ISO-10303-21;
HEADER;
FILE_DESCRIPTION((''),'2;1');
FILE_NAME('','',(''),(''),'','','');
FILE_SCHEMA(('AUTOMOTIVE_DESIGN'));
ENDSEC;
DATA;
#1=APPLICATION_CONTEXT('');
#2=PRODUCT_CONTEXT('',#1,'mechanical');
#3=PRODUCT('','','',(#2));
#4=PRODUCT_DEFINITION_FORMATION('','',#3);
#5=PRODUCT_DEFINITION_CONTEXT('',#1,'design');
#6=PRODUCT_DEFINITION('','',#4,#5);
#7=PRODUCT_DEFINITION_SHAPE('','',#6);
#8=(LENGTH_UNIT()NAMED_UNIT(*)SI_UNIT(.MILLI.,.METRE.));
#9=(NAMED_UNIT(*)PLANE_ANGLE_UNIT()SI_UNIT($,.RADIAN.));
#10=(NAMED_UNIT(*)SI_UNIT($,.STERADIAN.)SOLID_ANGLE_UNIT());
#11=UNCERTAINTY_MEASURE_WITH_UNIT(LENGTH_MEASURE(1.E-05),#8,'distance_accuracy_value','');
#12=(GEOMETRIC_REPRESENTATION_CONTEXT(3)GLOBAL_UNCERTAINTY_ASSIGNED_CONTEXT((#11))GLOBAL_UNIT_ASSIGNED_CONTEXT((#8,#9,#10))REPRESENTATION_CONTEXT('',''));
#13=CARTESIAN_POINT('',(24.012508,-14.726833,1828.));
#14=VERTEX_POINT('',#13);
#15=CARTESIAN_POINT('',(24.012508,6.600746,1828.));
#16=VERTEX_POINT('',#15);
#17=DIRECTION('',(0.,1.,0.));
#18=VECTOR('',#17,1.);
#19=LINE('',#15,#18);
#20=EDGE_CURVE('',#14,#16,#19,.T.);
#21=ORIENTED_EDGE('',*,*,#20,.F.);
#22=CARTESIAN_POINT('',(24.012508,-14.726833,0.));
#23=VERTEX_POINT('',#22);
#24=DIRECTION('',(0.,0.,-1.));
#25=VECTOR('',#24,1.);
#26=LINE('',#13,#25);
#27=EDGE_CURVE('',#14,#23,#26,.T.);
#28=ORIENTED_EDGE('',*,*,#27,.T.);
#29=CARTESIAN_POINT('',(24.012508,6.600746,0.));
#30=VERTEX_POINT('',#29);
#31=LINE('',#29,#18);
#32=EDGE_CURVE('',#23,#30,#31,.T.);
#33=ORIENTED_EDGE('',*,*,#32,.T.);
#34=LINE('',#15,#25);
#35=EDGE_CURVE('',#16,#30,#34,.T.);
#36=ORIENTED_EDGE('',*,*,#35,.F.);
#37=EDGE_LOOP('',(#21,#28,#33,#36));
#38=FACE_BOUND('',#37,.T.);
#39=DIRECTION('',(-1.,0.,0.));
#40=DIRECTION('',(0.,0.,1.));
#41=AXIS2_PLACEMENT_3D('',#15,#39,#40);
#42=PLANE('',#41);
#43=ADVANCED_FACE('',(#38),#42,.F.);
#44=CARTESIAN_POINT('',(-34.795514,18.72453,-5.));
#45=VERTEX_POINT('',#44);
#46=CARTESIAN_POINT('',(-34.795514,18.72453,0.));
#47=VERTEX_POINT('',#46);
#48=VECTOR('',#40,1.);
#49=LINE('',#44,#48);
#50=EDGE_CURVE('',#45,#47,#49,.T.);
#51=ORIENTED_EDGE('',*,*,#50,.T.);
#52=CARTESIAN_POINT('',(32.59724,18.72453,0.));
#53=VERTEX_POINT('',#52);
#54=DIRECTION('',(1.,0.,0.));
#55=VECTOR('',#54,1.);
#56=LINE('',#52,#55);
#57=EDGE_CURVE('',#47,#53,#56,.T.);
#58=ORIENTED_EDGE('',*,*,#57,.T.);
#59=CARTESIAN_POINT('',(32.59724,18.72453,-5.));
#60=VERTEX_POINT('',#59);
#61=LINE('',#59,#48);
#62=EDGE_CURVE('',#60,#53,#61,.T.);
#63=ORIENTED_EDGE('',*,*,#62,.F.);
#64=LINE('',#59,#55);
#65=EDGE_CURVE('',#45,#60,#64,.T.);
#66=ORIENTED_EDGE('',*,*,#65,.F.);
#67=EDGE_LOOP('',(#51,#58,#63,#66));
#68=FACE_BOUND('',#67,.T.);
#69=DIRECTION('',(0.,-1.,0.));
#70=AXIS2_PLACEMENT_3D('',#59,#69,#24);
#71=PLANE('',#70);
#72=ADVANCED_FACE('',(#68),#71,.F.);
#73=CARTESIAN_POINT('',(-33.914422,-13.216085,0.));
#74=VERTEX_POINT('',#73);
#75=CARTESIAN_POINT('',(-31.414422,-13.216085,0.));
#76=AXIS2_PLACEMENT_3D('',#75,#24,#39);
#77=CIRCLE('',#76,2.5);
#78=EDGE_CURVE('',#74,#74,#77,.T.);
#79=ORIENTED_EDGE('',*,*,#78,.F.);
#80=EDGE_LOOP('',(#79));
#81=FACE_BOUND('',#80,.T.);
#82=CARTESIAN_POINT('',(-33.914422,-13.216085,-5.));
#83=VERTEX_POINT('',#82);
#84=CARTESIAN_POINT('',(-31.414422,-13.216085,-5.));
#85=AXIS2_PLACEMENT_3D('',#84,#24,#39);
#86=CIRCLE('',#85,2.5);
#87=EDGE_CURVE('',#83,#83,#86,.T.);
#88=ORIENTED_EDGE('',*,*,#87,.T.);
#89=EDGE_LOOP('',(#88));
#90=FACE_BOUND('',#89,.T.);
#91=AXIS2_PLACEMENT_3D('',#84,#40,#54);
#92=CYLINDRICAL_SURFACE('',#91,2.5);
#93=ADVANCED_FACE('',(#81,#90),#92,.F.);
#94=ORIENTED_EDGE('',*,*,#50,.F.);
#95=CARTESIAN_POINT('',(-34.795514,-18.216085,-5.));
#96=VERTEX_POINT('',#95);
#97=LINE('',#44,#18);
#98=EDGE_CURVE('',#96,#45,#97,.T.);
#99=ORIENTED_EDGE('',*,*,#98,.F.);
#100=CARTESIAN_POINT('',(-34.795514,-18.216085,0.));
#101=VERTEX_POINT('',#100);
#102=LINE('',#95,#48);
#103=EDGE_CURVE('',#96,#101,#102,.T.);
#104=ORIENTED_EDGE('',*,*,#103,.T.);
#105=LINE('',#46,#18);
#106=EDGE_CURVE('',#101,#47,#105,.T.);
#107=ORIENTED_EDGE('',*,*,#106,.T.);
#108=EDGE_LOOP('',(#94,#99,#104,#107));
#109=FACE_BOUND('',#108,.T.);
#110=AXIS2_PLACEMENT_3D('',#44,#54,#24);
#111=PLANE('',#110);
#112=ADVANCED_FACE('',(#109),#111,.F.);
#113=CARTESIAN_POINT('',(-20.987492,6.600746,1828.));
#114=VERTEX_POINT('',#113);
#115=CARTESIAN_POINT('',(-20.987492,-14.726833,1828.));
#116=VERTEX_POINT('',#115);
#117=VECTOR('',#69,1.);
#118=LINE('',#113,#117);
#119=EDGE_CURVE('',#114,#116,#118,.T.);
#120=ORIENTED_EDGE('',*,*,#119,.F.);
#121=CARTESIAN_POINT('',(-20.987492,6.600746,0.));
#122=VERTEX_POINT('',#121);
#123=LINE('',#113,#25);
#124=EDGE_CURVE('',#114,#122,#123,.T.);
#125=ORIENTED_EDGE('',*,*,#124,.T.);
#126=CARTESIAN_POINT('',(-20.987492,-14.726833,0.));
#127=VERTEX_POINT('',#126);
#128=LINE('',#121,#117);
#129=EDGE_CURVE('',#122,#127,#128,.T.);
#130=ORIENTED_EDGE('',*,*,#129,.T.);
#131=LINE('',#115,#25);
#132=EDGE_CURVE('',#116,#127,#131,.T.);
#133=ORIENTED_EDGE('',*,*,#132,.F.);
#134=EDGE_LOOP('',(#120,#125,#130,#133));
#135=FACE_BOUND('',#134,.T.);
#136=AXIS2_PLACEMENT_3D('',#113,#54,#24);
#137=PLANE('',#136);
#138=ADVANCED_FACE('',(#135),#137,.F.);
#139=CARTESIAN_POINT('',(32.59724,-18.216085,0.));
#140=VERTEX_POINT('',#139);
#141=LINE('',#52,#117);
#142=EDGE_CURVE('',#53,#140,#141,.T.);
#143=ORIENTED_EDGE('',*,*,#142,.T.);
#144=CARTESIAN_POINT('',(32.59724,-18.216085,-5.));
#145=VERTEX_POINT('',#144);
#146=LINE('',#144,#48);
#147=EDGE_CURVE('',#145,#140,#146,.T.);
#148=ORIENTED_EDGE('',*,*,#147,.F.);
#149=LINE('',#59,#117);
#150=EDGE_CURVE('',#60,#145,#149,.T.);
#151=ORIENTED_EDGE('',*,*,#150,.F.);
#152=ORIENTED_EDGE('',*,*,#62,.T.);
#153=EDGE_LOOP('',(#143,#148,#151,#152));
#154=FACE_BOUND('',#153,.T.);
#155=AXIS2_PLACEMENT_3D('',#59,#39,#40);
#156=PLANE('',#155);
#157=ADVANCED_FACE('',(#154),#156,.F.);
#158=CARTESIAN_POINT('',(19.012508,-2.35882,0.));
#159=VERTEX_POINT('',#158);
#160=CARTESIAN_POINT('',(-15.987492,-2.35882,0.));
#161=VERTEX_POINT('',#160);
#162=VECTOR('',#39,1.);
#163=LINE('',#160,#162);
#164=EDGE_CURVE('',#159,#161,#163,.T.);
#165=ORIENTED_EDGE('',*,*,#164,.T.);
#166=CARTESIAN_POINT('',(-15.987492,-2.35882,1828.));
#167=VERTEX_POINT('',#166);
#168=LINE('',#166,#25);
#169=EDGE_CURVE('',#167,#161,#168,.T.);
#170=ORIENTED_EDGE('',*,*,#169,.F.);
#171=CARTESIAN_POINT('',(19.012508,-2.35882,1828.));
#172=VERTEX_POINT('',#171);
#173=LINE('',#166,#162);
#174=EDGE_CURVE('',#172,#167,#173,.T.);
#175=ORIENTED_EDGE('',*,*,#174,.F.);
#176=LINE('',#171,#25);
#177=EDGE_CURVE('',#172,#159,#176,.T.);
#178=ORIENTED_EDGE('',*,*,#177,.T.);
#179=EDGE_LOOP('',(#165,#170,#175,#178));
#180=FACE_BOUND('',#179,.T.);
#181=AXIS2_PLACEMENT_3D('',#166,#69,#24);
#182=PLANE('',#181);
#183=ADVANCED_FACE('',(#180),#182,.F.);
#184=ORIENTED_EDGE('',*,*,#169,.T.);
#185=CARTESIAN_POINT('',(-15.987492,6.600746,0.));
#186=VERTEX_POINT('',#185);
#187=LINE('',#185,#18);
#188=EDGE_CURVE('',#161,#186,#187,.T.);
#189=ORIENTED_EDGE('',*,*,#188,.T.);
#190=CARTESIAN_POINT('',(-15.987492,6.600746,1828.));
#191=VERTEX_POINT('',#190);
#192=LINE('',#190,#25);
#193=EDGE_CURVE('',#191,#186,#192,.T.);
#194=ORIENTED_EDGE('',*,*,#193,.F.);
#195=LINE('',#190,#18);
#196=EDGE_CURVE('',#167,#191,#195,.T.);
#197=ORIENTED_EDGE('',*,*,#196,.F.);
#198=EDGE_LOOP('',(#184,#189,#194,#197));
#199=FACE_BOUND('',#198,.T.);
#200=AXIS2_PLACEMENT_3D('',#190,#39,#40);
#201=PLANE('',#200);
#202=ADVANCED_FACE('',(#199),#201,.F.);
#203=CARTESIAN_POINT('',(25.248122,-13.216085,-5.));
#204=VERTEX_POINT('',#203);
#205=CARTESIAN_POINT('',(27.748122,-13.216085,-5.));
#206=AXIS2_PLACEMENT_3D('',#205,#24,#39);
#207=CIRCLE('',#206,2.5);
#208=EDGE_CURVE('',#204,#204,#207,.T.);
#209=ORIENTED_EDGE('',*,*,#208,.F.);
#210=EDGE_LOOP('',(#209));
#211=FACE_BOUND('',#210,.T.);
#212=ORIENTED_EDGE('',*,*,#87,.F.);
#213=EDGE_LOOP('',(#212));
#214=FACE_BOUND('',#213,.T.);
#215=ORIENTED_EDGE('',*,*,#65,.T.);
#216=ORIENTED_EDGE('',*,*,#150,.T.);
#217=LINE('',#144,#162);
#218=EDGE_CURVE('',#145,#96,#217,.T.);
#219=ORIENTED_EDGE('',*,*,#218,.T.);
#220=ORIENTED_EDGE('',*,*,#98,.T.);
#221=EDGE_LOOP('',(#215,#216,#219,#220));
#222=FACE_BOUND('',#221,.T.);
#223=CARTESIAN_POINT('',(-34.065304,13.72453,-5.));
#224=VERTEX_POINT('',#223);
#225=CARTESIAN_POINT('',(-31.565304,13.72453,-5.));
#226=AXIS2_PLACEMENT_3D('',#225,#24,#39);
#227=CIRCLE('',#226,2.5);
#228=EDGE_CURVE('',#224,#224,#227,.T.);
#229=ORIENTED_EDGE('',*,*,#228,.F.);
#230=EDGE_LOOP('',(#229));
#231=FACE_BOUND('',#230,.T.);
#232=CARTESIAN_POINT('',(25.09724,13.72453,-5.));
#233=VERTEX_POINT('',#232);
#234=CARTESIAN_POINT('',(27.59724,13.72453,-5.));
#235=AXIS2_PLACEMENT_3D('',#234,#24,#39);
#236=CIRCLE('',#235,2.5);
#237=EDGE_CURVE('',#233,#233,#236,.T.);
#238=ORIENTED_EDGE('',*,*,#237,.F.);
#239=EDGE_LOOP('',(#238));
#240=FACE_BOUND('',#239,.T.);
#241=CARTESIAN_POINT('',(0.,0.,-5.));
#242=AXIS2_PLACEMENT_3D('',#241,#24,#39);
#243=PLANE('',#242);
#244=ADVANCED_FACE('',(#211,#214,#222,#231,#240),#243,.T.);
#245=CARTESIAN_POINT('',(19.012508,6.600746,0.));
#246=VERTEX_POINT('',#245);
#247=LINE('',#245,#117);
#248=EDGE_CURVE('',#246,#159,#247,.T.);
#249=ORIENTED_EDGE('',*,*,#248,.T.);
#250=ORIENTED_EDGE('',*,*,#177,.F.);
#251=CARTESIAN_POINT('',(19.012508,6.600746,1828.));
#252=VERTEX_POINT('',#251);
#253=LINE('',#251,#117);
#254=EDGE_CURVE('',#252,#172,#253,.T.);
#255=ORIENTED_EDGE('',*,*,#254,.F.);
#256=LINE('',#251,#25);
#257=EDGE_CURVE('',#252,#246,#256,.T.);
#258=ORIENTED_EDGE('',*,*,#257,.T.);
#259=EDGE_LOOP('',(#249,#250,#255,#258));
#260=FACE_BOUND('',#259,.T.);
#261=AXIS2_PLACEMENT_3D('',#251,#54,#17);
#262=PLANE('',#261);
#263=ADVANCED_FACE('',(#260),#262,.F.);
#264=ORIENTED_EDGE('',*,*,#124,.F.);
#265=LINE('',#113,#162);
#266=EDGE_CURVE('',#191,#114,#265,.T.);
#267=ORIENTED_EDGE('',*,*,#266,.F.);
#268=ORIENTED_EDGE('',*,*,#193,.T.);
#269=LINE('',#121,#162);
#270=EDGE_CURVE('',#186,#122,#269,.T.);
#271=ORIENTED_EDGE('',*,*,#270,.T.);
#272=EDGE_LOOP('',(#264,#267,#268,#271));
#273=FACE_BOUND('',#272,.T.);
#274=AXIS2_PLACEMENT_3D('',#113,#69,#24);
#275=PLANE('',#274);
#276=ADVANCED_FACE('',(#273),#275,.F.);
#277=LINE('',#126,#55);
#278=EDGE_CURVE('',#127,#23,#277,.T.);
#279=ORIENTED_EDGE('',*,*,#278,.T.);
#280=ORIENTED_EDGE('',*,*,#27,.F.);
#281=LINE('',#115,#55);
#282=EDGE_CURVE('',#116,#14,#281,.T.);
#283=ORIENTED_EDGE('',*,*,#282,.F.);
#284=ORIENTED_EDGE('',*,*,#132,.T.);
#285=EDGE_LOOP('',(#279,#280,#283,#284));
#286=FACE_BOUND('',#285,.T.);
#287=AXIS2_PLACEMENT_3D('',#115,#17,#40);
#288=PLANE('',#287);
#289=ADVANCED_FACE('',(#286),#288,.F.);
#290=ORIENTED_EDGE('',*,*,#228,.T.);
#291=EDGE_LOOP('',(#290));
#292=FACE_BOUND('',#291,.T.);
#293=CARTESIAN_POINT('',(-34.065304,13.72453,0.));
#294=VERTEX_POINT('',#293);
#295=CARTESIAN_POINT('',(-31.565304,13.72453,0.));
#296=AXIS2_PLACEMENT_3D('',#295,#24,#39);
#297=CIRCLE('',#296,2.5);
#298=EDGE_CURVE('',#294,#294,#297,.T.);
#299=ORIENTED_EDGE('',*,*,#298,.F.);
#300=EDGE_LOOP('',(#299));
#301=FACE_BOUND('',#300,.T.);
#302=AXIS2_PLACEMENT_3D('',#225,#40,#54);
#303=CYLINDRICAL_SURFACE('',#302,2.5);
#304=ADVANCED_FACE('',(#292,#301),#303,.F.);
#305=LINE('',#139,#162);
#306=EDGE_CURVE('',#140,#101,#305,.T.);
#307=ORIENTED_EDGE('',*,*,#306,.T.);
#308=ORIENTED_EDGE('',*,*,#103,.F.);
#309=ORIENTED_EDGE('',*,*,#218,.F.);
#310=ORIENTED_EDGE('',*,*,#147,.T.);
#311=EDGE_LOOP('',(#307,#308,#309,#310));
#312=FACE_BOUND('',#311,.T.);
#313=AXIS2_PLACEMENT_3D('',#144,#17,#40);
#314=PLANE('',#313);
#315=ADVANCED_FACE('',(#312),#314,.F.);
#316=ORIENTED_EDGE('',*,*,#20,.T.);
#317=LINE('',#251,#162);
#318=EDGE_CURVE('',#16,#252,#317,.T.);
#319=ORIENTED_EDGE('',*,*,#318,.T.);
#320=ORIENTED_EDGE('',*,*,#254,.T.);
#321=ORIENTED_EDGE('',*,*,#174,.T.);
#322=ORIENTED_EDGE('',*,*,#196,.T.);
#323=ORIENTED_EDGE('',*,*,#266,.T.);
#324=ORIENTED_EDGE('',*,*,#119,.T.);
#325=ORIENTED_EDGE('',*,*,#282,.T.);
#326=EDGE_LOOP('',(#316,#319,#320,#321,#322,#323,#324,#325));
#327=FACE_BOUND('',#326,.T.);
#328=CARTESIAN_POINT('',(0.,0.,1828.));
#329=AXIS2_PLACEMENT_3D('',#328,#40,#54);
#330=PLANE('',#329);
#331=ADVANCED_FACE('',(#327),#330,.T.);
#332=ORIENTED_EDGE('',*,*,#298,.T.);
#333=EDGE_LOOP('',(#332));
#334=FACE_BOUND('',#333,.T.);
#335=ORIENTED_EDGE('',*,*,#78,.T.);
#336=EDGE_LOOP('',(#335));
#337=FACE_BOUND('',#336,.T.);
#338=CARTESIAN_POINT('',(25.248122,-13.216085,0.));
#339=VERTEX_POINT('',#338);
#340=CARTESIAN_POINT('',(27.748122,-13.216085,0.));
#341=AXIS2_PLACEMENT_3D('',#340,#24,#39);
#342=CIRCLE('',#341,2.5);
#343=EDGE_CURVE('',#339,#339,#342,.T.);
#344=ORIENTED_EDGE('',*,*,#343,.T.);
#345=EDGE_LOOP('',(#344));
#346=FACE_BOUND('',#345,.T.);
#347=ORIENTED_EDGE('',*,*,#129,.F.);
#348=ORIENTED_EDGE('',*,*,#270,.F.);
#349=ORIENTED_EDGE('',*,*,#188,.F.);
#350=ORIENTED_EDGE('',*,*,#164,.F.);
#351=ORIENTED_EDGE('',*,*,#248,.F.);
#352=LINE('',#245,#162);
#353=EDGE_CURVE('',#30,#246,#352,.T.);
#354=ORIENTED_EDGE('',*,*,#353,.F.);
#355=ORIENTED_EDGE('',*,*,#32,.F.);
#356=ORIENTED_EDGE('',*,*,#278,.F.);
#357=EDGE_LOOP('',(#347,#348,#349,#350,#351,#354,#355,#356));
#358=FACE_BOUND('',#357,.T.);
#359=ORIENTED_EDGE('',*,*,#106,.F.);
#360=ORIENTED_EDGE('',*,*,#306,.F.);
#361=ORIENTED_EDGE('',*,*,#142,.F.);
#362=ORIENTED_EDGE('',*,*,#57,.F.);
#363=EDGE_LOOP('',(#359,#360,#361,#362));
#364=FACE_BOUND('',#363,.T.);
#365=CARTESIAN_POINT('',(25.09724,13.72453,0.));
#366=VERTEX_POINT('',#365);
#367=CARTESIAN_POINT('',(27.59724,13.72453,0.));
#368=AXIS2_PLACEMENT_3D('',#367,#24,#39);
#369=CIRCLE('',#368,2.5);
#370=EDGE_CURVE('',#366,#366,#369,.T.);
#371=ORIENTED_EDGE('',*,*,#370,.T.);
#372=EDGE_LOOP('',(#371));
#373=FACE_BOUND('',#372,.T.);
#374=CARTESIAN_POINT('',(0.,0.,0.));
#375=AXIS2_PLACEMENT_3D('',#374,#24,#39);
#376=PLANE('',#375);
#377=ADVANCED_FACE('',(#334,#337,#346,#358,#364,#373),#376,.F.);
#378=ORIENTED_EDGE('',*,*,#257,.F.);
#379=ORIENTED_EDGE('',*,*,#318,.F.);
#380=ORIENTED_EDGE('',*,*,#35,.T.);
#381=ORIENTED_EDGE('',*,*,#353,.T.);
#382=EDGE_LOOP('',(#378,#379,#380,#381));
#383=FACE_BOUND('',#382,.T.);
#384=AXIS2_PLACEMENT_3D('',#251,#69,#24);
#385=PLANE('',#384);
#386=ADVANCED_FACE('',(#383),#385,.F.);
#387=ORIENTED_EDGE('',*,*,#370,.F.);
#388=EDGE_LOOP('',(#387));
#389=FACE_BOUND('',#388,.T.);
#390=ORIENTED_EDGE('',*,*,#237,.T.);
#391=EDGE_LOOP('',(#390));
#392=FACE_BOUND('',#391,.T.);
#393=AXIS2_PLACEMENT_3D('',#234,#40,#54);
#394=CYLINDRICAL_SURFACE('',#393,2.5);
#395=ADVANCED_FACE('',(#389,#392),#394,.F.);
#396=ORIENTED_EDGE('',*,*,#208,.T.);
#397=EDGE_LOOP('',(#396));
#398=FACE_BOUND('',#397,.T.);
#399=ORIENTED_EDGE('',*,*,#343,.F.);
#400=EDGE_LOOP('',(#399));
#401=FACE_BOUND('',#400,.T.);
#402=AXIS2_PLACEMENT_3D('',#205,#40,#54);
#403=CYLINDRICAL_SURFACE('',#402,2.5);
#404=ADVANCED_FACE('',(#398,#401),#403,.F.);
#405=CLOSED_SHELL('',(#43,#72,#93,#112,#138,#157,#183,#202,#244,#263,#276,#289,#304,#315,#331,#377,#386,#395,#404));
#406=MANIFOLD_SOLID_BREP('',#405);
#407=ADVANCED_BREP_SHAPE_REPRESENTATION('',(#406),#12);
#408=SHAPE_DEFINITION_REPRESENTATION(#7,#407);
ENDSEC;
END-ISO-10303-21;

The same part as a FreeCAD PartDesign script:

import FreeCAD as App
import Part
import Sketcher
from FreeCAD import Vector
Q = App.Units.Quantity


def add_polygon(sketch, points):
    """Adds a closed chain of lines whose ends are joined by coincident constraints."""
    first, n = sketch.GeometryCount, len(points)
    for a, b in zip(points, points[1:] + points[:1]):
        sketch.addGeometry(Part.LineSegment(App.Vector(*a, 0), App.Vector(*b, 0)), False)
    for i in range(n):
        sketch.addConstraint(Sketcher.Constraint("Coincident", first + i, 2, first + (i + 1) % n, 1))

doc = App.newDocument("Part")
body = doc.addObject("PartDesign::Body", "Body")

sketch1 = doc.addObject("Sketcher::SketchObject", "Sketch")
body.addObject(sketch1)
sketch1.AttachmentSupport = (doc.XY_Plane, [""])
sketch1.MapMode = "FlatFace"
add_polygon(sketch1, [(-15.987492, 6.600746), (-20.987492, 6.600746), (-20.987492, -14.726833), (24.012508, -14.726833), (24.012508, 6.600746), (19.012508, 6.600746), (19.012508, -2.35882), (-15.987492, -2.35882)])
sketch1.addConstraint(Sketcher.Constraint("Horizontal", 0))
sketch1.addConstraint(Sketcher.Constraint("Vertical", 1))
sketch1.addConstraint(Sketcher.Constraint("Horizontal", 2))
sketch1.addConstraint(Sketcher.Constraint("Vertical", 3))
sketch1.addConstraint(Sketcher.Constraint("Horizontal", 4))
sketch1.addConstraint(Sketcher.Constraint("Vertical", 5))
sketch1.addConstraint(Sketcher.Constraint("Horizontal", 6))
sketch1.addConstraint(Sketcher.Constraint("Vertical", 7))
sketch1.addConstraint(Sketcher.Constraint("Horizontal", 0, 2, 3, 2))
sketch1.addConstraint(Sketcher.Constraint("Equal", 0, 4))
sketch1.addConstraint(Sketcher.Constraint("DistanceX", 0, 2, 0, 1, Q("5 mm")))
sketch1.addConstraint(Sketcher.Constraint("DistanceX", 2, 1, 2, 2, Q("45 mm")))
sketch1.addConstraint(Sketcher.Constraint("DistanceY", 1, 2, 1, 1, Q("21.327578 mm")))
sketch1.addConstraint(Sketcher.Constraint("DistanceY", 5, 2, 5, 1, Q("8.959566 mm")))
sketch1.addConstraint(Sketcher.Constraint("DistanceY", 5, 2, -1, 1, Q("2.35882 mm")))
sketch1.addConstraint(Sketcher.Constraint("DistanceX", 0, 2, -1, 1, Q("20.987492 mm")))
pad1 = doc.addObject("PartDesign::Pad", "Pad")
body.addObject(pad1)
pad1.Profile = sketch1
pad1.Length = 1828

sketch2 = doc.addObject("Sketcher::SketchObject", "Sketch001")
body.addObject(sketch2)
sketch2.AttachmentSupport = (doc.XY_Plane, [""])
sketch2.MapMode = "FlatFace"
add_polygon(sketch2, [(32.59724, 18.72453), (32.59724, -18.216085), (-34.795514, -18.216085), (-34.795514, 18.72453)])
sketch2.addGeometry(Part.Circle(Vector(27.748122, -13.216085, 0), Vector(0, 0, 1), 2.5), False)
sketch2.addGeometry(Part.Circle(Vector(-31.414422, -13.216085, 0), Vector(0, 0, 1), 2.5), False)
sketch2.addGeometry(Part.Circle(Vector(27.59724, 13.72453, 0), Vector(0, 0, 1), 2.5), False)
sketch2.addGeometry(Part.Circle(Vector(-31.565304, 13.72453, 0), Vector(0, 0, 1), 2.5), False)
sketch2.addConstraint(Sketcher.Constraint("Vertical", 0))
sketch2.addConstraint(Sketcher.Constraint("Horizontal", 1))
sketch2.addConstraint(Sketcher.Constraint("Vertical", 2))
sketch2.addConstraint(Sketcher.Constraint("Horizontal", 3))
sketch2.addConstraint(Sketcher.Constraint("Equal", 4, 5))
sketch2.addConstraint(Sketcher.Constraint("Equal", 5, 6))
sketch2.addConstraint(Sketcher.Constraint("Equal", 6, 7))
sketch2.addConstraint(Sketcher.Constraint("Horizontal", 4, 3, 5, 3))
sketch2.addConstraint(Sketcher.Constraint("Horizontal", 6, 3, 7, 3))
sketch2.addConstraint(Sketcher.Constraint("Diameter", 4, Q("5 mm")))
sketch2.addConstraint(Sketcher.Constraint("DistanceY", 0, 2, 4, 3, Q("5 mm")))
sketch2.addConstraint(Sketcher.Constraint("DistanceX", 6, 3, 0, 2, Q("5 mm")))
sketch2.addConstraint(Sketcher.Constraint("DistanceY", 7, 3, 2, 2, Q("5 mm")))
sketch2.addConstraint(Sketcher.Constraint("DistanceX", 1, 2, 1, 1, Q("67.392754 mm")))
sketch2.addConstraint(Sketcher.Constraint("DistanceY", 0, 2, 0, 1, Q("36.940615 mm")))
sketch2.addConstraint(Sketcher.Constraint("DistanceX", 5, 3, -1, 1, Q("31.414422 mm")))
sketch2.addConstraint(Sketcher.Constraint("DistanceX", -1, 1, 6, 3, Q("27.59724 mm")))
sketch2.addConstraint(Sketcher.Constraint("DistanceY", -1, 1, 6, 3, Q("13.72453 mm")))
sketch2.addConstraint(Sketcher.Constraint("DistanceX", 6, 3, 4, 3, Q("0.150882 mm")))
sketch2.addConstraint(Sketcher.Constraint("DistanceX", 7, 3, 5, 3, Q("0.150882 mm")))
pad2 = doc.addObject("PartDesign::Pad", "Pad001")
body.addObject(pad2)
pad2.Profile = sketch2
pad2.Length = 5
pad2.Reversed = True

doc.recompute()
